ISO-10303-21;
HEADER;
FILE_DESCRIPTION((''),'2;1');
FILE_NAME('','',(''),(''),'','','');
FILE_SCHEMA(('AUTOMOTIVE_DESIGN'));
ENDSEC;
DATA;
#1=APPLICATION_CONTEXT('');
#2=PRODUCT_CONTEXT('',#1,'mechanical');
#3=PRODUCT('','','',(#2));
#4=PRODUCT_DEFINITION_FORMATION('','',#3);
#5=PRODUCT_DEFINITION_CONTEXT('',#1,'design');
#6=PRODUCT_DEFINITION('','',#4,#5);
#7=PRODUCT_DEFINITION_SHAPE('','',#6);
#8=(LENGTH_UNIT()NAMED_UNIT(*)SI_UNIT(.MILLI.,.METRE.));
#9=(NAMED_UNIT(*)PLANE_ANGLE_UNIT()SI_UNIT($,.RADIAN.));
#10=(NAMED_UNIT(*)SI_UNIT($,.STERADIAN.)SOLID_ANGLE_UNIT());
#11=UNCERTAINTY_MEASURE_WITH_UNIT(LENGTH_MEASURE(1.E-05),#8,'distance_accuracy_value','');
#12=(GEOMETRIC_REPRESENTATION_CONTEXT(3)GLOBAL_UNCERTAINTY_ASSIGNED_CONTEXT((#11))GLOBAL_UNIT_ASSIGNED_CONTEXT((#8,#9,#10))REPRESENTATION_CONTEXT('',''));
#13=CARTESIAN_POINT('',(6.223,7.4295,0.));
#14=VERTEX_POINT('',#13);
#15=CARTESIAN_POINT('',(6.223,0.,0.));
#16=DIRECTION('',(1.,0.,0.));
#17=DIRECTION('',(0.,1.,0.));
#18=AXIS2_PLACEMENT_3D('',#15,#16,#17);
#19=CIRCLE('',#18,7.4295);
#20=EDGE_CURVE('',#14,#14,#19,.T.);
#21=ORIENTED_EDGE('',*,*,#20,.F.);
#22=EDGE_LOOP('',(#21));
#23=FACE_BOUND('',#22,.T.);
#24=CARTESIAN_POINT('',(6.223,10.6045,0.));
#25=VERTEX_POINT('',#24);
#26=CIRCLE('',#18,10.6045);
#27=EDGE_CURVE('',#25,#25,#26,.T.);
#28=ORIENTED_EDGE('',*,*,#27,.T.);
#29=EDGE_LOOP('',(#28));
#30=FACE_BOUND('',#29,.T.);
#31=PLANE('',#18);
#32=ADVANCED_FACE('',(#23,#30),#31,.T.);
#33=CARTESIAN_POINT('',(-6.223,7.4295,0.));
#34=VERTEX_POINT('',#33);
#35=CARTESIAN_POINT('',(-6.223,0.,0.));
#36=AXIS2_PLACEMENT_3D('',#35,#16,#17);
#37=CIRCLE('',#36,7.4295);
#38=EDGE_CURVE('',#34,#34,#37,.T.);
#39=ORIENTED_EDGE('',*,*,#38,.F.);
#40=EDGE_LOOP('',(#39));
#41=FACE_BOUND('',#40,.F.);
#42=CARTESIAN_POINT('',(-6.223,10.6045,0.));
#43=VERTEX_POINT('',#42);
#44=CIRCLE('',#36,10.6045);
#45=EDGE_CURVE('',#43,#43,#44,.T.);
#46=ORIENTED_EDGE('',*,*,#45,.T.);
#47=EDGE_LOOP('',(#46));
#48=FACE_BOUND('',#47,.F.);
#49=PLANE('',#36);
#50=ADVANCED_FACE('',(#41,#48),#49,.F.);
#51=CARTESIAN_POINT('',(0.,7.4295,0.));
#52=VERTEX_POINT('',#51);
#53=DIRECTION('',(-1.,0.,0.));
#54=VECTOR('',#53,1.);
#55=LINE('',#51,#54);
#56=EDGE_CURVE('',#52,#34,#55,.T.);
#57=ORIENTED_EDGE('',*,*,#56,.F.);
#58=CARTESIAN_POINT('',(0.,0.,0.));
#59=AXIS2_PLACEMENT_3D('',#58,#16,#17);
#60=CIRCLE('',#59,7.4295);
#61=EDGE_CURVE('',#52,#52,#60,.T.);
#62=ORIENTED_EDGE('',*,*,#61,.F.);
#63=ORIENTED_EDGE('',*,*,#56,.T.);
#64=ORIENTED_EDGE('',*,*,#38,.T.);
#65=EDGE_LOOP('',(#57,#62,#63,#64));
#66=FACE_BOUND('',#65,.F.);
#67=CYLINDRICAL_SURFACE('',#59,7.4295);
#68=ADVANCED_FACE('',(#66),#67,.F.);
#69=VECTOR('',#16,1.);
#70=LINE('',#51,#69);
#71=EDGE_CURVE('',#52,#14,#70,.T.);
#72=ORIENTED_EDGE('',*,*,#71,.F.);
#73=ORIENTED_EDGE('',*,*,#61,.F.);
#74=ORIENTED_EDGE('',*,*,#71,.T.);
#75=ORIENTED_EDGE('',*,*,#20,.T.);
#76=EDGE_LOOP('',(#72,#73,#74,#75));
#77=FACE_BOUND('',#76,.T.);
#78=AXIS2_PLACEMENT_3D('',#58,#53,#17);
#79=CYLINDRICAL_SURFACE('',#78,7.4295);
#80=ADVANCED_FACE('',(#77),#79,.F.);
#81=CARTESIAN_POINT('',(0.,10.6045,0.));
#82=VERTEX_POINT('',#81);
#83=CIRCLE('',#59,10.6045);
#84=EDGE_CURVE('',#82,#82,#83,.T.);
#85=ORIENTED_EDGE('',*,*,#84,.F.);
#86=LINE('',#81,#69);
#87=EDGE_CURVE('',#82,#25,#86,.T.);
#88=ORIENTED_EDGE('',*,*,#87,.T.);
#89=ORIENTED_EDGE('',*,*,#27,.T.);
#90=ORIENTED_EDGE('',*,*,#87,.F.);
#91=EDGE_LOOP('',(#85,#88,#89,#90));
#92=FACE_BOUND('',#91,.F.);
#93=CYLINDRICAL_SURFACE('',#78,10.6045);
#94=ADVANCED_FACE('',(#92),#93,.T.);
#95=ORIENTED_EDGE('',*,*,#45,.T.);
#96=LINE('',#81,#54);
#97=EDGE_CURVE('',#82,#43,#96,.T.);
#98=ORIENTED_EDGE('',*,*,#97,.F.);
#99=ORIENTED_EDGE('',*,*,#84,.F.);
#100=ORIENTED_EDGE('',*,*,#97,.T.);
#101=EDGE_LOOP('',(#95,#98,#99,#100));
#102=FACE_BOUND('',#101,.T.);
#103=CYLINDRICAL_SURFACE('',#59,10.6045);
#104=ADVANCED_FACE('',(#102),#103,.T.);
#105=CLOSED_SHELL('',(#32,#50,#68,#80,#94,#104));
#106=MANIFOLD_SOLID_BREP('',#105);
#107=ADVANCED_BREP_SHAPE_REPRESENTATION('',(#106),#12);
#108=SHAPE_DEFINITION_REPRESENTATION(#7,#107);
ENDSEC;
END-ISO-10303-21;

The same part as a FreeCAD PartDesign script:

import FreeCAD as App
import Part
import Sketcher
from FreeCAD import Vector
Q = App.Units.Quantity

doc = App.newDocument("Part")
params = doc.addObject("Spreadsheet::Sheet", "Params")
for row, (alias, value) in enumerate([
    ("sketch1_diameter", "0.585 in"),
    ("sketch1_diameter2", "0.835 in"),
    ("pad1_length", "0.49 in"),
], start=1):
    params.set(f"A{row}", alias)
    params.set(f"B{row}", "=" + value)
    params.setAlias(f"B{row}", alias)

body = doc.addObject("PartDesign::Body", "Body")

# Sketch on YZ plane
sketch1 = body.newObject("Sketcher::SketchObject", "Sketch")
sketch1.AttachmentSupport = (doc.getObject("YZ_Plane"), [""])
sketch1.MapMode = "FlatFace"
sketch1.addGeometry(Part.Circle(Vector(0, 0, 0), Vector(0, 0, 1), 11), False)
sketch1.addGeometry(Part.Circle(Vector(0, 0, 0), Vector(0, 0, 1), 7), False)
sketch1.addConstraint(Sketcher.Constraint("Coincident", 0, 3, -1, 1))
sketch1.addConstraint(Sketcher.Constraint("Coincident", 1, 3, -1, 1))
sketch1.addConstraint(Sketcher.Constraint("Diameter", 1, Q("0.585 in")))
sketch1.addConstraint(Sketcher.Constraint("Diameter", 0, Q("0.835 in")))
sketch1.setExpression("Constraints[2]", "Params.sketch1_diameter")
sketch1.setExpression("Constraints[3]", "Params.sketch1_diameter2")
pad1 = body.newObject("PartDesign::Pad", "Pad")
pad1.Profile = sketch1
pad1.setExpression("Length", "Params.pad1_length")
pad1.Midplane = True

doc.recompute()
